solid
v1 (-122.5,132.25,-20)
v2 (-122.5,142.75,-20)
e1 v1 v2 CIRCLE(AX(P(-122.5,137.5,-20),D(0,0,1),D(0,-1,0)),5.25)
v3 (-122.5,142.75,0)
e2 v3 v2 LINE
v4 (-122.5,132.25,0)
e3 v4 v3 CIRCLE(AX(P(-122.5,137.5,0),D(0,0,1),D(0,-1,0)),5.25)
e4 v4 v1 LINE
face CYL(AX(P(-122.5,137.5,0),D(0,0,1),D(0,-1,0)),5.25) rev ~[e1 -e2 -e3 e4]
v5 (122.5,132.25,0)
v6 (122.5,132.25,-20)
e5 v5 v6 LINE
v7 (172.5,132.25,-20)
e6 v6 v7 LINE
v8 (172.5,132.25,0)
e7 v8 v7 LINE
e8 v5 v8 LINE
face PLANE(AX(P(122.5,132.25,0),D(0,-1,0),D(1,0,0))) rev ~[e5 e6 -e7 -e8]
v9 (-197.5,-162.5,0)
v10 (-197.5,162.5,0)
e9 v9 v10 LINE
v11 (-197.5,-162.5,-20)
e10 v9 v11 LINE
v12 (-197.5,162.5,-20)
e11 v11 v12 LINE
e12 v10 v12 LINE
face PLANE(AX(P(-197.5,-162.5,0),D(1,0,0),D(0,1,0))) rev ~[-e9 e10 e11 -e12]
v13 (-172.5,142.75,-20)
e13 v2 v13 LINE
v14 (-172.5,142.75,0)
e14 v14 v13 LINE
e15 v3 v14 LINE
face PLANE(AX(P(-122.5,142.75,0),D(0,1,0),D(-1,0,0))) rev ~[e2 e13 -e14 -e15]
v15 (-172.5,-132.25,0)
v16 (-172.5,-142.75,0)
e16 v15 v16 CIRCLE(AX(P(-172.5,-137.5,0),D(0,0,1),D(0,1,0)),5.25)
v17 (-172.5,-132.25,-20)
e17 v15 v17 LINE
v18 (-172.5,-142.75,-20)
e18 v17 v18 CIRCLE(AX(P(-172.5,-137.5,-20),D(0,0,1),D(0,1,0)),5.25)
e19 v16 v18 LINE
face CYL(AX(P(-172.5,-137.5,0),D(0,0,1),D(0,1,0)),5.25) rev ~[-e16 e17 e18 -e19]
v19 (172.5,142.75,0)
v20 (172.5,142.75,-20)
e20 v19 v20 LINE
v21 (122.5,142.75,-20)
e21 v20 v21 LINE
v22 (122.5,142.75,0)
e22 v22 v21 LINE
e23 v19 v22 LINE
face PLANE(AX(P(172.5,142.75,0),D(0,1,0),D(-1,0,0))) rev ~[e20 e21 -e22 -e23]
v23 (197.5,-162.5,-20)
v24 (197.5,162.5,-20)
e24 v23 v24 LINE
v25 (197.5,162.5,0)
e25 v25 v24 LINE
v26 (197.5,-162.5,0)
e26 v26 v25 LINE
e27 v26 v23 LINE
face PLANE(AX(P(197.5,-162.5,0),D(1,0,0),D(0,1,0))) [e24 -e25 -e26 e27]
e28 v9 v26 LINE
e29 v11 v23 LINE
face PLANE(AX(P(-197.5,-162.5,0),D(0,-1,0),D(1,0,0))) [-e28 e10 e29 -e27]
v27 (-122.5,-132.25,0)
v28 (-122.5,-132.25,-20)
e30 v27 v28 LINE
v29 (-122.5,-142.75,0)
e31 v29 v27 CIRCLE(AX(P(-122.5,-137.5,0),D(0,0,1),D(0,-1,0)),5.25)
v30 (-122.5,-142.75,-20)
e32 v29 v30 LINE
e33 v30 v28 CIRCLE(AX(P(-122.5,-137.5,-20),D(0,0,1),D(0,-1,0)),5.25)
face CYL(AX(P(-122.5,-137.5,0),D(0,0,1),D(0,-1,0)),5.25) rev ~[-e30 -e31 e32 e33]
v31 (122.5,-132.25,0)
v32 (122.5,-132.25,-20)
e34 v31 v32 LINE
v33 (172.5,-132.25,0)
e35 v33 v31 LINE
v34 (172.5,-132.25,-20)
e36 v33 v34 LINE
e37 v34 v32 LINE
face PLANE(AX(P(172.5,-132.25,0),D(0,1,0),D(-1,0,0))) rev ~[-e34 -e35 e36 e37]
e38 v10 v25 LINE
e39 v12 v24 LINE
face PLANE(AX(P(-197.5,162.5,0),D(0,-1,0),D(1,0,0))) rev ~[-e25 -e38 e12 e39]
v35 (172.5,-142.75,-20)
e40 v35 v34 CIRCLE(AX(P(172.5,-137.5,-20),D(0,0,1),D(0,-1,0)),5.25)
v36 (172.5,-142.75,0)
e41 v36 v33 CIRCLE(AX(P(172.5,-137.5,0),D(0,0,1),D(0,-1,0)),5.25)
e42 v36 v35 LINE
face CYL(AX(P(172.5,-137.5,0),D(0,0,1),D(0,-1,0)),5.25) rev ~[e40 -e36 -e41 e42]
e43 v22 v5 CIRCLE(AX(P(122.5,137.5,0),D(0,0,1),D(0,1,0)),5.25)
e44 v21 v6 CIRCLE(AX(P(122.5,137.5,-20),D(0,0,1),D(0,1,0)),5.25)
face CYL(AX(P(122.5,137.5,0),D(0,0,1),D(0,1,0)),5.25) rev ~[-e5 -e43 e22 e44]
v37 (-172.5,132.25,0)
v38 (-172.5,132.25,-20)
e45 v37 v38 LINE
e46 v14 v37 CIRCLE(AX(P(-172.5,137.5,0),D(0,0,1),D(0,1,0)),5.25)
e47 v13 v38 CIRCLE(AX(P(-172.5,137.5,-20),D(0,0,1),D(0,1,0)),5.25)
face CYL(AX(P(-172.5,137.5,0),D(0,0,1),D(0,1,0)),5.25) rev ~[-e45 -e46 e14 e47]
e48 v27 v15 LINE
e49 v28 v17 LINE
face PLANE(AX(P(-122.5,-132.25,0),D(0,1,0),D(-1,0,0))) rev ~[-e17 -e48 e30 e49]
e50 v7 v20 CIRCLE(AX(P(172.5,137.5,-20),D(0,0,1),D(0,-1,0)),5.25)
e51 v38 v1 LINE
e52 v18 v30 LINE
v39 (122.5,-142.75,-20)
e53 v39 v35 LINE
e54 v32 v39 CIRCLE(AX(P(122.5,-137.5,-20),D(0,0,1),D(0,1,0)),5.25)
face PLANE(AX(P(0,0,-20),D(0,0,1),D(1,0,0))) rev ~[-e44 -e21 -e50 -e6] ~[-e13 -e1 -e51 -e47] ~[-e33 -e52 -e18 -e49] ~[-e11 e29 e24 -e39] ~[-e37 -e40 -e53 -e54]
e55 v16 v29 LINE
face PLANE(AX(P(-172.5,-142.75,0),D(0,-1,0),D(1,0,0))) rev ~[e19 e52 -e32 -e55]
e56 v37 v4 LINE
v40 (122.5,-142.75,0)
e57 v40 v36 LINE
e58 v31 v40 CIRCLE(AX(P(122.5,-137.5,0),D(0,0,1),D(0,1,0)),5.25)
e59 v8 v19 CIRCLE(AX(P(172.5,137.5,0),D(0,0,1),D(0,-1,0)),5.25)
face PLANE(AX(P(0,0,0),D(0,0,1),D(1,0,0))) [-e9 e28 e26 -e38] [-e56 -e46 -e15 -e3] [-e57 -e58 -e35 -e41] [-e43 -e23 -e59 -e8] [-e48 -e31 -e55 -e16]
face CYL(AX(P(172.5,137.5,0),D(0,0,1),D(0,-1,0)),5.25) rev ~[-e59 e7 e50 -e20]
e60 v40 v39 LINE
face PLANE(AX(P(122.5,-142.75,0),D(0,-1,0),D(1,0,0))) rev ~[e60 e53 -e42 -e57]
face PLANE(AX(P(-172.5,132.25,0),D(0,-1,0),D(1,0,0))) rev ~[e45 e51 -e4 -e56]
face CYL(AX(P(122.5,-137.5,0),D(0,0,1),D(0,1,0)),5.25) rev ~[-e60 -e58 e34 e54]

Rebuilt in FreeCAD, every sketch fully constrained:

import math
import FreeCAD as App
import Part
import Sketcher
Q = App.Units.Quantity


def add_polygon(sketch, points):
    """Adds a closed chain of lines whose ends are joined by coincident constraints."""
    first, n = sketch.GeometryCount, len(points)
    for a, b in zip(points, points[1:] + points[:1]):
        sketch.addGeometry(Part.LineSegment(App.Vector(*a, 0), App.Vector(*b, 0)), False)
    for i in range(n):
        sketch.addConstraint(Sketcher.Constraint("Coincident", first + i, 2, first + (i + 1) % n, 1))

doc = App.newDocument("Part")
body = doc.addObject("PartDesign::Body", "Body")

sketch1 = body.newObject("Sketcher::SketchObject", "Sketch")
sketch1.AttachmentSupport = (doc.getObject("XY_Plane"), [""])
sketch1.MapMode = "FlatFace"
add_polygon(sketch1, [(-198, 162), (-198, -162), (198, -162), (198, 162)])
sketch1.addConstraint([
    Sketcher.Constraint("Vertical", 0),
    Sketcher.Constraint("Horizontal", 1),
    Sketcher.Constraint("Vertical", 2),
    Sketcher.Constraint("Horizontal", 3),
    Sketcher.Constraint("Symmetric", 0, 2, 2, 2, -1, 1),
    Sketcher.Constraint("DistanceX", 1, 1, 1, 2, Q("395 mm")),
    Sketcher.Constraint("DistanceY", 0, 2, 0, 1, Q("325 mm")),
])
pad1 = body.newObject("PartDesign::Pad", "Pad")
pad1.Profile = sketch1
pad1.Length = 20
pad1.Reversed = True

sketch2 = body.newObject("Sketcher::SketchObject", "Sketch001")
sketch2.AttachmentSupport = (doc.getObject("XY_Plane"), [""])
sketch2.MapMode = "FlatFace"
sketch2.addGeometry([
    Part.ArcOfCircle(Part.Circle(App.Vector(-172, 138, 0), App.Vector(0, 0, 1), 5), math.radians(90), math.radians(270)),
    Part.LineSegment(App.Vector(-172, 132, 0), App.Vector(-122, 132, 0)),
    Part.ArcOfCircle(Part.Circle(App.Vector(-122, 138, 0), App.Vector(0, 0, 1), 5), math.radians(-90), math.radians(90)),
    Part.LineSegment(App.Vector(-122, 143, 0), App.Vector(-172, 143, 0)),
    Part.LineSegment(App.Vector(-122, -132, 0), App.Vector(-172, -132, 0)),
    Part.ArcOfCircle(Part.Circle(App.Vector(-172, -138, 0), App.Vector(0, 0, 1), 5), math.radians(90), math.radians(270)),
    Part.LineSegment(App.Vector(-172, -143, 0), App.Vector(-122, -143, 0)),
    Part.ArcOfCircle(Part.Circle(App.Vector(-122, -138, 0), App.Vector(0, 0, 1), 5), math.radians(-90), math.radians(90)),
    Part.ArcOfCircle(Part.Circle(App.Vector(172, -138, 0), App.Vector(0, 0, 1), 5), math.radians(-90), math.radians(90)),
    Part.LineSegment(App.Vector(172, -132, 0), App.Vector(122, -132, 0)),
    Part.ArcOfCircle(Part.Circle(App.Vector(122, -138, 0), App.Vector(0, 0, 1), 5), math.radians(90), math.radians(270)),
    Part.LineSegment(App.Vector(122, -143, 0), App.Vector(172, -143, 0)),
    Part.LineSegment(App.Vector(122, 132, 0), App.Vector(172, 132, 0)),
    Part.ArcOfCircle(Part.Circle(App.Vector(172, 138, 0), App.Vector(0, 0, 1), 5), math.radians(-90), math.radians(90)),
    Part.LineSegment(App.Vector(172, 143, 0), App.Vector(122, 143, 0)),
    Part.ArcOfCircle(Part.Circle(App.Vector(122, 138, 0), App.Vector(0, 0, 1), 5), math.radians(90), math.radians(270)),
], False)
sketch2.addConstraint([
    Sketcher.Constraint("Tangent", 0, 2, 1, 1),
    Sketcher.Constraint("Tangent", 1, 2, 2, 1),
    Sketcher.Constraint("Tangent", 2, 2, 3, 1),
    Sketcher.Constraint("Tangent", 3, 2, 0, 1),
    Sketcher.Constraint("Tangent", 4, 2, 5, 1),
    Sketcher.Constraint("Tangent", 5, 2, 6, 1),
    Sketcher.Constraint("Tangent", 6, 2, 7, 1),
    Sketcher.Constraint("Tangent", 7, 2, 4, 1),
    Sketcher.Constraint("Tangent", 8, 2, 9, 1),
    Sketcher.Constraint("Tangent", 9, 2, 10, 1),
    Sketcher.Constraint("Tangent", 10, 2, 11, 1),
    Sketcher.Constraint("Tangent", 11, 2, 8, 1),
    Sketcher.Constraint("Tangent", 12, 2, 13, 1),
    Sketcher.Constraint("Tangent", 13, 2, 14, 1),
    Sketcher.Constraint("Tangent", 14, 2, 15, 1),
    Sketcher.Constraint("Tangent", 15, 2, 12, 1),
    Sketcher.Constraint("Horizontal", 1),
    Sketcher.Constraint("Horizontal", 3),
    Sketcher.Constraint("Horizontal", 4),
    Sketcher.Constraint("Horizontal", 6),
    Sketcher.Constraint("Horizontal", 9),
    Sketcher.Constraint("Horizontal", 11),
    Sketcher.Constraint("Horizontal", 12),
    Sketcher.Constraint("Horizontal", 14),
    Sketcher.Constraint("Equal", 2, 5),
    Sketcher.Constraint("Equal", 7, 8),
    Sketcher.Constraint("Equal", 10, 13),
    Sketcher.Constraint("Symmetric", 0, 3, 8, 3, -1, 1),
    Sketcher.Constraint("Symmetric", 5, 3, 13, 3, -1, 1),
    Sketcher.Constraint("Symmetric", 5, 3, 8, 3, -2),
    Sketcher.Constraint("Vertical", 2, 3, 7, 3),
    Sketcher.Constraint("Vertical", 10, 3, 15, 3),
    Sketcher.Constraint("Equal", 6, 9),
    Sketcher.Constraint("DistanceX", 1, 1, 1, 2, Q("50 mm")),
    Sketcher.Constraint("Radius", 0, Q("5.25 mm")),
    Sketcher.Constraint("DistanceY", 5, 3, 0, 3, Q("275 mm")),
    Sketcher.Constraint("DistanceX", 7, 3, 8, 3, Q("295 mm")),
])
pocket1 = body.newObject("PartDesign::Pocket", "Pocket")
pocket1.Profile = sketch2
pocket1.Length = 25

doc.recompute()
